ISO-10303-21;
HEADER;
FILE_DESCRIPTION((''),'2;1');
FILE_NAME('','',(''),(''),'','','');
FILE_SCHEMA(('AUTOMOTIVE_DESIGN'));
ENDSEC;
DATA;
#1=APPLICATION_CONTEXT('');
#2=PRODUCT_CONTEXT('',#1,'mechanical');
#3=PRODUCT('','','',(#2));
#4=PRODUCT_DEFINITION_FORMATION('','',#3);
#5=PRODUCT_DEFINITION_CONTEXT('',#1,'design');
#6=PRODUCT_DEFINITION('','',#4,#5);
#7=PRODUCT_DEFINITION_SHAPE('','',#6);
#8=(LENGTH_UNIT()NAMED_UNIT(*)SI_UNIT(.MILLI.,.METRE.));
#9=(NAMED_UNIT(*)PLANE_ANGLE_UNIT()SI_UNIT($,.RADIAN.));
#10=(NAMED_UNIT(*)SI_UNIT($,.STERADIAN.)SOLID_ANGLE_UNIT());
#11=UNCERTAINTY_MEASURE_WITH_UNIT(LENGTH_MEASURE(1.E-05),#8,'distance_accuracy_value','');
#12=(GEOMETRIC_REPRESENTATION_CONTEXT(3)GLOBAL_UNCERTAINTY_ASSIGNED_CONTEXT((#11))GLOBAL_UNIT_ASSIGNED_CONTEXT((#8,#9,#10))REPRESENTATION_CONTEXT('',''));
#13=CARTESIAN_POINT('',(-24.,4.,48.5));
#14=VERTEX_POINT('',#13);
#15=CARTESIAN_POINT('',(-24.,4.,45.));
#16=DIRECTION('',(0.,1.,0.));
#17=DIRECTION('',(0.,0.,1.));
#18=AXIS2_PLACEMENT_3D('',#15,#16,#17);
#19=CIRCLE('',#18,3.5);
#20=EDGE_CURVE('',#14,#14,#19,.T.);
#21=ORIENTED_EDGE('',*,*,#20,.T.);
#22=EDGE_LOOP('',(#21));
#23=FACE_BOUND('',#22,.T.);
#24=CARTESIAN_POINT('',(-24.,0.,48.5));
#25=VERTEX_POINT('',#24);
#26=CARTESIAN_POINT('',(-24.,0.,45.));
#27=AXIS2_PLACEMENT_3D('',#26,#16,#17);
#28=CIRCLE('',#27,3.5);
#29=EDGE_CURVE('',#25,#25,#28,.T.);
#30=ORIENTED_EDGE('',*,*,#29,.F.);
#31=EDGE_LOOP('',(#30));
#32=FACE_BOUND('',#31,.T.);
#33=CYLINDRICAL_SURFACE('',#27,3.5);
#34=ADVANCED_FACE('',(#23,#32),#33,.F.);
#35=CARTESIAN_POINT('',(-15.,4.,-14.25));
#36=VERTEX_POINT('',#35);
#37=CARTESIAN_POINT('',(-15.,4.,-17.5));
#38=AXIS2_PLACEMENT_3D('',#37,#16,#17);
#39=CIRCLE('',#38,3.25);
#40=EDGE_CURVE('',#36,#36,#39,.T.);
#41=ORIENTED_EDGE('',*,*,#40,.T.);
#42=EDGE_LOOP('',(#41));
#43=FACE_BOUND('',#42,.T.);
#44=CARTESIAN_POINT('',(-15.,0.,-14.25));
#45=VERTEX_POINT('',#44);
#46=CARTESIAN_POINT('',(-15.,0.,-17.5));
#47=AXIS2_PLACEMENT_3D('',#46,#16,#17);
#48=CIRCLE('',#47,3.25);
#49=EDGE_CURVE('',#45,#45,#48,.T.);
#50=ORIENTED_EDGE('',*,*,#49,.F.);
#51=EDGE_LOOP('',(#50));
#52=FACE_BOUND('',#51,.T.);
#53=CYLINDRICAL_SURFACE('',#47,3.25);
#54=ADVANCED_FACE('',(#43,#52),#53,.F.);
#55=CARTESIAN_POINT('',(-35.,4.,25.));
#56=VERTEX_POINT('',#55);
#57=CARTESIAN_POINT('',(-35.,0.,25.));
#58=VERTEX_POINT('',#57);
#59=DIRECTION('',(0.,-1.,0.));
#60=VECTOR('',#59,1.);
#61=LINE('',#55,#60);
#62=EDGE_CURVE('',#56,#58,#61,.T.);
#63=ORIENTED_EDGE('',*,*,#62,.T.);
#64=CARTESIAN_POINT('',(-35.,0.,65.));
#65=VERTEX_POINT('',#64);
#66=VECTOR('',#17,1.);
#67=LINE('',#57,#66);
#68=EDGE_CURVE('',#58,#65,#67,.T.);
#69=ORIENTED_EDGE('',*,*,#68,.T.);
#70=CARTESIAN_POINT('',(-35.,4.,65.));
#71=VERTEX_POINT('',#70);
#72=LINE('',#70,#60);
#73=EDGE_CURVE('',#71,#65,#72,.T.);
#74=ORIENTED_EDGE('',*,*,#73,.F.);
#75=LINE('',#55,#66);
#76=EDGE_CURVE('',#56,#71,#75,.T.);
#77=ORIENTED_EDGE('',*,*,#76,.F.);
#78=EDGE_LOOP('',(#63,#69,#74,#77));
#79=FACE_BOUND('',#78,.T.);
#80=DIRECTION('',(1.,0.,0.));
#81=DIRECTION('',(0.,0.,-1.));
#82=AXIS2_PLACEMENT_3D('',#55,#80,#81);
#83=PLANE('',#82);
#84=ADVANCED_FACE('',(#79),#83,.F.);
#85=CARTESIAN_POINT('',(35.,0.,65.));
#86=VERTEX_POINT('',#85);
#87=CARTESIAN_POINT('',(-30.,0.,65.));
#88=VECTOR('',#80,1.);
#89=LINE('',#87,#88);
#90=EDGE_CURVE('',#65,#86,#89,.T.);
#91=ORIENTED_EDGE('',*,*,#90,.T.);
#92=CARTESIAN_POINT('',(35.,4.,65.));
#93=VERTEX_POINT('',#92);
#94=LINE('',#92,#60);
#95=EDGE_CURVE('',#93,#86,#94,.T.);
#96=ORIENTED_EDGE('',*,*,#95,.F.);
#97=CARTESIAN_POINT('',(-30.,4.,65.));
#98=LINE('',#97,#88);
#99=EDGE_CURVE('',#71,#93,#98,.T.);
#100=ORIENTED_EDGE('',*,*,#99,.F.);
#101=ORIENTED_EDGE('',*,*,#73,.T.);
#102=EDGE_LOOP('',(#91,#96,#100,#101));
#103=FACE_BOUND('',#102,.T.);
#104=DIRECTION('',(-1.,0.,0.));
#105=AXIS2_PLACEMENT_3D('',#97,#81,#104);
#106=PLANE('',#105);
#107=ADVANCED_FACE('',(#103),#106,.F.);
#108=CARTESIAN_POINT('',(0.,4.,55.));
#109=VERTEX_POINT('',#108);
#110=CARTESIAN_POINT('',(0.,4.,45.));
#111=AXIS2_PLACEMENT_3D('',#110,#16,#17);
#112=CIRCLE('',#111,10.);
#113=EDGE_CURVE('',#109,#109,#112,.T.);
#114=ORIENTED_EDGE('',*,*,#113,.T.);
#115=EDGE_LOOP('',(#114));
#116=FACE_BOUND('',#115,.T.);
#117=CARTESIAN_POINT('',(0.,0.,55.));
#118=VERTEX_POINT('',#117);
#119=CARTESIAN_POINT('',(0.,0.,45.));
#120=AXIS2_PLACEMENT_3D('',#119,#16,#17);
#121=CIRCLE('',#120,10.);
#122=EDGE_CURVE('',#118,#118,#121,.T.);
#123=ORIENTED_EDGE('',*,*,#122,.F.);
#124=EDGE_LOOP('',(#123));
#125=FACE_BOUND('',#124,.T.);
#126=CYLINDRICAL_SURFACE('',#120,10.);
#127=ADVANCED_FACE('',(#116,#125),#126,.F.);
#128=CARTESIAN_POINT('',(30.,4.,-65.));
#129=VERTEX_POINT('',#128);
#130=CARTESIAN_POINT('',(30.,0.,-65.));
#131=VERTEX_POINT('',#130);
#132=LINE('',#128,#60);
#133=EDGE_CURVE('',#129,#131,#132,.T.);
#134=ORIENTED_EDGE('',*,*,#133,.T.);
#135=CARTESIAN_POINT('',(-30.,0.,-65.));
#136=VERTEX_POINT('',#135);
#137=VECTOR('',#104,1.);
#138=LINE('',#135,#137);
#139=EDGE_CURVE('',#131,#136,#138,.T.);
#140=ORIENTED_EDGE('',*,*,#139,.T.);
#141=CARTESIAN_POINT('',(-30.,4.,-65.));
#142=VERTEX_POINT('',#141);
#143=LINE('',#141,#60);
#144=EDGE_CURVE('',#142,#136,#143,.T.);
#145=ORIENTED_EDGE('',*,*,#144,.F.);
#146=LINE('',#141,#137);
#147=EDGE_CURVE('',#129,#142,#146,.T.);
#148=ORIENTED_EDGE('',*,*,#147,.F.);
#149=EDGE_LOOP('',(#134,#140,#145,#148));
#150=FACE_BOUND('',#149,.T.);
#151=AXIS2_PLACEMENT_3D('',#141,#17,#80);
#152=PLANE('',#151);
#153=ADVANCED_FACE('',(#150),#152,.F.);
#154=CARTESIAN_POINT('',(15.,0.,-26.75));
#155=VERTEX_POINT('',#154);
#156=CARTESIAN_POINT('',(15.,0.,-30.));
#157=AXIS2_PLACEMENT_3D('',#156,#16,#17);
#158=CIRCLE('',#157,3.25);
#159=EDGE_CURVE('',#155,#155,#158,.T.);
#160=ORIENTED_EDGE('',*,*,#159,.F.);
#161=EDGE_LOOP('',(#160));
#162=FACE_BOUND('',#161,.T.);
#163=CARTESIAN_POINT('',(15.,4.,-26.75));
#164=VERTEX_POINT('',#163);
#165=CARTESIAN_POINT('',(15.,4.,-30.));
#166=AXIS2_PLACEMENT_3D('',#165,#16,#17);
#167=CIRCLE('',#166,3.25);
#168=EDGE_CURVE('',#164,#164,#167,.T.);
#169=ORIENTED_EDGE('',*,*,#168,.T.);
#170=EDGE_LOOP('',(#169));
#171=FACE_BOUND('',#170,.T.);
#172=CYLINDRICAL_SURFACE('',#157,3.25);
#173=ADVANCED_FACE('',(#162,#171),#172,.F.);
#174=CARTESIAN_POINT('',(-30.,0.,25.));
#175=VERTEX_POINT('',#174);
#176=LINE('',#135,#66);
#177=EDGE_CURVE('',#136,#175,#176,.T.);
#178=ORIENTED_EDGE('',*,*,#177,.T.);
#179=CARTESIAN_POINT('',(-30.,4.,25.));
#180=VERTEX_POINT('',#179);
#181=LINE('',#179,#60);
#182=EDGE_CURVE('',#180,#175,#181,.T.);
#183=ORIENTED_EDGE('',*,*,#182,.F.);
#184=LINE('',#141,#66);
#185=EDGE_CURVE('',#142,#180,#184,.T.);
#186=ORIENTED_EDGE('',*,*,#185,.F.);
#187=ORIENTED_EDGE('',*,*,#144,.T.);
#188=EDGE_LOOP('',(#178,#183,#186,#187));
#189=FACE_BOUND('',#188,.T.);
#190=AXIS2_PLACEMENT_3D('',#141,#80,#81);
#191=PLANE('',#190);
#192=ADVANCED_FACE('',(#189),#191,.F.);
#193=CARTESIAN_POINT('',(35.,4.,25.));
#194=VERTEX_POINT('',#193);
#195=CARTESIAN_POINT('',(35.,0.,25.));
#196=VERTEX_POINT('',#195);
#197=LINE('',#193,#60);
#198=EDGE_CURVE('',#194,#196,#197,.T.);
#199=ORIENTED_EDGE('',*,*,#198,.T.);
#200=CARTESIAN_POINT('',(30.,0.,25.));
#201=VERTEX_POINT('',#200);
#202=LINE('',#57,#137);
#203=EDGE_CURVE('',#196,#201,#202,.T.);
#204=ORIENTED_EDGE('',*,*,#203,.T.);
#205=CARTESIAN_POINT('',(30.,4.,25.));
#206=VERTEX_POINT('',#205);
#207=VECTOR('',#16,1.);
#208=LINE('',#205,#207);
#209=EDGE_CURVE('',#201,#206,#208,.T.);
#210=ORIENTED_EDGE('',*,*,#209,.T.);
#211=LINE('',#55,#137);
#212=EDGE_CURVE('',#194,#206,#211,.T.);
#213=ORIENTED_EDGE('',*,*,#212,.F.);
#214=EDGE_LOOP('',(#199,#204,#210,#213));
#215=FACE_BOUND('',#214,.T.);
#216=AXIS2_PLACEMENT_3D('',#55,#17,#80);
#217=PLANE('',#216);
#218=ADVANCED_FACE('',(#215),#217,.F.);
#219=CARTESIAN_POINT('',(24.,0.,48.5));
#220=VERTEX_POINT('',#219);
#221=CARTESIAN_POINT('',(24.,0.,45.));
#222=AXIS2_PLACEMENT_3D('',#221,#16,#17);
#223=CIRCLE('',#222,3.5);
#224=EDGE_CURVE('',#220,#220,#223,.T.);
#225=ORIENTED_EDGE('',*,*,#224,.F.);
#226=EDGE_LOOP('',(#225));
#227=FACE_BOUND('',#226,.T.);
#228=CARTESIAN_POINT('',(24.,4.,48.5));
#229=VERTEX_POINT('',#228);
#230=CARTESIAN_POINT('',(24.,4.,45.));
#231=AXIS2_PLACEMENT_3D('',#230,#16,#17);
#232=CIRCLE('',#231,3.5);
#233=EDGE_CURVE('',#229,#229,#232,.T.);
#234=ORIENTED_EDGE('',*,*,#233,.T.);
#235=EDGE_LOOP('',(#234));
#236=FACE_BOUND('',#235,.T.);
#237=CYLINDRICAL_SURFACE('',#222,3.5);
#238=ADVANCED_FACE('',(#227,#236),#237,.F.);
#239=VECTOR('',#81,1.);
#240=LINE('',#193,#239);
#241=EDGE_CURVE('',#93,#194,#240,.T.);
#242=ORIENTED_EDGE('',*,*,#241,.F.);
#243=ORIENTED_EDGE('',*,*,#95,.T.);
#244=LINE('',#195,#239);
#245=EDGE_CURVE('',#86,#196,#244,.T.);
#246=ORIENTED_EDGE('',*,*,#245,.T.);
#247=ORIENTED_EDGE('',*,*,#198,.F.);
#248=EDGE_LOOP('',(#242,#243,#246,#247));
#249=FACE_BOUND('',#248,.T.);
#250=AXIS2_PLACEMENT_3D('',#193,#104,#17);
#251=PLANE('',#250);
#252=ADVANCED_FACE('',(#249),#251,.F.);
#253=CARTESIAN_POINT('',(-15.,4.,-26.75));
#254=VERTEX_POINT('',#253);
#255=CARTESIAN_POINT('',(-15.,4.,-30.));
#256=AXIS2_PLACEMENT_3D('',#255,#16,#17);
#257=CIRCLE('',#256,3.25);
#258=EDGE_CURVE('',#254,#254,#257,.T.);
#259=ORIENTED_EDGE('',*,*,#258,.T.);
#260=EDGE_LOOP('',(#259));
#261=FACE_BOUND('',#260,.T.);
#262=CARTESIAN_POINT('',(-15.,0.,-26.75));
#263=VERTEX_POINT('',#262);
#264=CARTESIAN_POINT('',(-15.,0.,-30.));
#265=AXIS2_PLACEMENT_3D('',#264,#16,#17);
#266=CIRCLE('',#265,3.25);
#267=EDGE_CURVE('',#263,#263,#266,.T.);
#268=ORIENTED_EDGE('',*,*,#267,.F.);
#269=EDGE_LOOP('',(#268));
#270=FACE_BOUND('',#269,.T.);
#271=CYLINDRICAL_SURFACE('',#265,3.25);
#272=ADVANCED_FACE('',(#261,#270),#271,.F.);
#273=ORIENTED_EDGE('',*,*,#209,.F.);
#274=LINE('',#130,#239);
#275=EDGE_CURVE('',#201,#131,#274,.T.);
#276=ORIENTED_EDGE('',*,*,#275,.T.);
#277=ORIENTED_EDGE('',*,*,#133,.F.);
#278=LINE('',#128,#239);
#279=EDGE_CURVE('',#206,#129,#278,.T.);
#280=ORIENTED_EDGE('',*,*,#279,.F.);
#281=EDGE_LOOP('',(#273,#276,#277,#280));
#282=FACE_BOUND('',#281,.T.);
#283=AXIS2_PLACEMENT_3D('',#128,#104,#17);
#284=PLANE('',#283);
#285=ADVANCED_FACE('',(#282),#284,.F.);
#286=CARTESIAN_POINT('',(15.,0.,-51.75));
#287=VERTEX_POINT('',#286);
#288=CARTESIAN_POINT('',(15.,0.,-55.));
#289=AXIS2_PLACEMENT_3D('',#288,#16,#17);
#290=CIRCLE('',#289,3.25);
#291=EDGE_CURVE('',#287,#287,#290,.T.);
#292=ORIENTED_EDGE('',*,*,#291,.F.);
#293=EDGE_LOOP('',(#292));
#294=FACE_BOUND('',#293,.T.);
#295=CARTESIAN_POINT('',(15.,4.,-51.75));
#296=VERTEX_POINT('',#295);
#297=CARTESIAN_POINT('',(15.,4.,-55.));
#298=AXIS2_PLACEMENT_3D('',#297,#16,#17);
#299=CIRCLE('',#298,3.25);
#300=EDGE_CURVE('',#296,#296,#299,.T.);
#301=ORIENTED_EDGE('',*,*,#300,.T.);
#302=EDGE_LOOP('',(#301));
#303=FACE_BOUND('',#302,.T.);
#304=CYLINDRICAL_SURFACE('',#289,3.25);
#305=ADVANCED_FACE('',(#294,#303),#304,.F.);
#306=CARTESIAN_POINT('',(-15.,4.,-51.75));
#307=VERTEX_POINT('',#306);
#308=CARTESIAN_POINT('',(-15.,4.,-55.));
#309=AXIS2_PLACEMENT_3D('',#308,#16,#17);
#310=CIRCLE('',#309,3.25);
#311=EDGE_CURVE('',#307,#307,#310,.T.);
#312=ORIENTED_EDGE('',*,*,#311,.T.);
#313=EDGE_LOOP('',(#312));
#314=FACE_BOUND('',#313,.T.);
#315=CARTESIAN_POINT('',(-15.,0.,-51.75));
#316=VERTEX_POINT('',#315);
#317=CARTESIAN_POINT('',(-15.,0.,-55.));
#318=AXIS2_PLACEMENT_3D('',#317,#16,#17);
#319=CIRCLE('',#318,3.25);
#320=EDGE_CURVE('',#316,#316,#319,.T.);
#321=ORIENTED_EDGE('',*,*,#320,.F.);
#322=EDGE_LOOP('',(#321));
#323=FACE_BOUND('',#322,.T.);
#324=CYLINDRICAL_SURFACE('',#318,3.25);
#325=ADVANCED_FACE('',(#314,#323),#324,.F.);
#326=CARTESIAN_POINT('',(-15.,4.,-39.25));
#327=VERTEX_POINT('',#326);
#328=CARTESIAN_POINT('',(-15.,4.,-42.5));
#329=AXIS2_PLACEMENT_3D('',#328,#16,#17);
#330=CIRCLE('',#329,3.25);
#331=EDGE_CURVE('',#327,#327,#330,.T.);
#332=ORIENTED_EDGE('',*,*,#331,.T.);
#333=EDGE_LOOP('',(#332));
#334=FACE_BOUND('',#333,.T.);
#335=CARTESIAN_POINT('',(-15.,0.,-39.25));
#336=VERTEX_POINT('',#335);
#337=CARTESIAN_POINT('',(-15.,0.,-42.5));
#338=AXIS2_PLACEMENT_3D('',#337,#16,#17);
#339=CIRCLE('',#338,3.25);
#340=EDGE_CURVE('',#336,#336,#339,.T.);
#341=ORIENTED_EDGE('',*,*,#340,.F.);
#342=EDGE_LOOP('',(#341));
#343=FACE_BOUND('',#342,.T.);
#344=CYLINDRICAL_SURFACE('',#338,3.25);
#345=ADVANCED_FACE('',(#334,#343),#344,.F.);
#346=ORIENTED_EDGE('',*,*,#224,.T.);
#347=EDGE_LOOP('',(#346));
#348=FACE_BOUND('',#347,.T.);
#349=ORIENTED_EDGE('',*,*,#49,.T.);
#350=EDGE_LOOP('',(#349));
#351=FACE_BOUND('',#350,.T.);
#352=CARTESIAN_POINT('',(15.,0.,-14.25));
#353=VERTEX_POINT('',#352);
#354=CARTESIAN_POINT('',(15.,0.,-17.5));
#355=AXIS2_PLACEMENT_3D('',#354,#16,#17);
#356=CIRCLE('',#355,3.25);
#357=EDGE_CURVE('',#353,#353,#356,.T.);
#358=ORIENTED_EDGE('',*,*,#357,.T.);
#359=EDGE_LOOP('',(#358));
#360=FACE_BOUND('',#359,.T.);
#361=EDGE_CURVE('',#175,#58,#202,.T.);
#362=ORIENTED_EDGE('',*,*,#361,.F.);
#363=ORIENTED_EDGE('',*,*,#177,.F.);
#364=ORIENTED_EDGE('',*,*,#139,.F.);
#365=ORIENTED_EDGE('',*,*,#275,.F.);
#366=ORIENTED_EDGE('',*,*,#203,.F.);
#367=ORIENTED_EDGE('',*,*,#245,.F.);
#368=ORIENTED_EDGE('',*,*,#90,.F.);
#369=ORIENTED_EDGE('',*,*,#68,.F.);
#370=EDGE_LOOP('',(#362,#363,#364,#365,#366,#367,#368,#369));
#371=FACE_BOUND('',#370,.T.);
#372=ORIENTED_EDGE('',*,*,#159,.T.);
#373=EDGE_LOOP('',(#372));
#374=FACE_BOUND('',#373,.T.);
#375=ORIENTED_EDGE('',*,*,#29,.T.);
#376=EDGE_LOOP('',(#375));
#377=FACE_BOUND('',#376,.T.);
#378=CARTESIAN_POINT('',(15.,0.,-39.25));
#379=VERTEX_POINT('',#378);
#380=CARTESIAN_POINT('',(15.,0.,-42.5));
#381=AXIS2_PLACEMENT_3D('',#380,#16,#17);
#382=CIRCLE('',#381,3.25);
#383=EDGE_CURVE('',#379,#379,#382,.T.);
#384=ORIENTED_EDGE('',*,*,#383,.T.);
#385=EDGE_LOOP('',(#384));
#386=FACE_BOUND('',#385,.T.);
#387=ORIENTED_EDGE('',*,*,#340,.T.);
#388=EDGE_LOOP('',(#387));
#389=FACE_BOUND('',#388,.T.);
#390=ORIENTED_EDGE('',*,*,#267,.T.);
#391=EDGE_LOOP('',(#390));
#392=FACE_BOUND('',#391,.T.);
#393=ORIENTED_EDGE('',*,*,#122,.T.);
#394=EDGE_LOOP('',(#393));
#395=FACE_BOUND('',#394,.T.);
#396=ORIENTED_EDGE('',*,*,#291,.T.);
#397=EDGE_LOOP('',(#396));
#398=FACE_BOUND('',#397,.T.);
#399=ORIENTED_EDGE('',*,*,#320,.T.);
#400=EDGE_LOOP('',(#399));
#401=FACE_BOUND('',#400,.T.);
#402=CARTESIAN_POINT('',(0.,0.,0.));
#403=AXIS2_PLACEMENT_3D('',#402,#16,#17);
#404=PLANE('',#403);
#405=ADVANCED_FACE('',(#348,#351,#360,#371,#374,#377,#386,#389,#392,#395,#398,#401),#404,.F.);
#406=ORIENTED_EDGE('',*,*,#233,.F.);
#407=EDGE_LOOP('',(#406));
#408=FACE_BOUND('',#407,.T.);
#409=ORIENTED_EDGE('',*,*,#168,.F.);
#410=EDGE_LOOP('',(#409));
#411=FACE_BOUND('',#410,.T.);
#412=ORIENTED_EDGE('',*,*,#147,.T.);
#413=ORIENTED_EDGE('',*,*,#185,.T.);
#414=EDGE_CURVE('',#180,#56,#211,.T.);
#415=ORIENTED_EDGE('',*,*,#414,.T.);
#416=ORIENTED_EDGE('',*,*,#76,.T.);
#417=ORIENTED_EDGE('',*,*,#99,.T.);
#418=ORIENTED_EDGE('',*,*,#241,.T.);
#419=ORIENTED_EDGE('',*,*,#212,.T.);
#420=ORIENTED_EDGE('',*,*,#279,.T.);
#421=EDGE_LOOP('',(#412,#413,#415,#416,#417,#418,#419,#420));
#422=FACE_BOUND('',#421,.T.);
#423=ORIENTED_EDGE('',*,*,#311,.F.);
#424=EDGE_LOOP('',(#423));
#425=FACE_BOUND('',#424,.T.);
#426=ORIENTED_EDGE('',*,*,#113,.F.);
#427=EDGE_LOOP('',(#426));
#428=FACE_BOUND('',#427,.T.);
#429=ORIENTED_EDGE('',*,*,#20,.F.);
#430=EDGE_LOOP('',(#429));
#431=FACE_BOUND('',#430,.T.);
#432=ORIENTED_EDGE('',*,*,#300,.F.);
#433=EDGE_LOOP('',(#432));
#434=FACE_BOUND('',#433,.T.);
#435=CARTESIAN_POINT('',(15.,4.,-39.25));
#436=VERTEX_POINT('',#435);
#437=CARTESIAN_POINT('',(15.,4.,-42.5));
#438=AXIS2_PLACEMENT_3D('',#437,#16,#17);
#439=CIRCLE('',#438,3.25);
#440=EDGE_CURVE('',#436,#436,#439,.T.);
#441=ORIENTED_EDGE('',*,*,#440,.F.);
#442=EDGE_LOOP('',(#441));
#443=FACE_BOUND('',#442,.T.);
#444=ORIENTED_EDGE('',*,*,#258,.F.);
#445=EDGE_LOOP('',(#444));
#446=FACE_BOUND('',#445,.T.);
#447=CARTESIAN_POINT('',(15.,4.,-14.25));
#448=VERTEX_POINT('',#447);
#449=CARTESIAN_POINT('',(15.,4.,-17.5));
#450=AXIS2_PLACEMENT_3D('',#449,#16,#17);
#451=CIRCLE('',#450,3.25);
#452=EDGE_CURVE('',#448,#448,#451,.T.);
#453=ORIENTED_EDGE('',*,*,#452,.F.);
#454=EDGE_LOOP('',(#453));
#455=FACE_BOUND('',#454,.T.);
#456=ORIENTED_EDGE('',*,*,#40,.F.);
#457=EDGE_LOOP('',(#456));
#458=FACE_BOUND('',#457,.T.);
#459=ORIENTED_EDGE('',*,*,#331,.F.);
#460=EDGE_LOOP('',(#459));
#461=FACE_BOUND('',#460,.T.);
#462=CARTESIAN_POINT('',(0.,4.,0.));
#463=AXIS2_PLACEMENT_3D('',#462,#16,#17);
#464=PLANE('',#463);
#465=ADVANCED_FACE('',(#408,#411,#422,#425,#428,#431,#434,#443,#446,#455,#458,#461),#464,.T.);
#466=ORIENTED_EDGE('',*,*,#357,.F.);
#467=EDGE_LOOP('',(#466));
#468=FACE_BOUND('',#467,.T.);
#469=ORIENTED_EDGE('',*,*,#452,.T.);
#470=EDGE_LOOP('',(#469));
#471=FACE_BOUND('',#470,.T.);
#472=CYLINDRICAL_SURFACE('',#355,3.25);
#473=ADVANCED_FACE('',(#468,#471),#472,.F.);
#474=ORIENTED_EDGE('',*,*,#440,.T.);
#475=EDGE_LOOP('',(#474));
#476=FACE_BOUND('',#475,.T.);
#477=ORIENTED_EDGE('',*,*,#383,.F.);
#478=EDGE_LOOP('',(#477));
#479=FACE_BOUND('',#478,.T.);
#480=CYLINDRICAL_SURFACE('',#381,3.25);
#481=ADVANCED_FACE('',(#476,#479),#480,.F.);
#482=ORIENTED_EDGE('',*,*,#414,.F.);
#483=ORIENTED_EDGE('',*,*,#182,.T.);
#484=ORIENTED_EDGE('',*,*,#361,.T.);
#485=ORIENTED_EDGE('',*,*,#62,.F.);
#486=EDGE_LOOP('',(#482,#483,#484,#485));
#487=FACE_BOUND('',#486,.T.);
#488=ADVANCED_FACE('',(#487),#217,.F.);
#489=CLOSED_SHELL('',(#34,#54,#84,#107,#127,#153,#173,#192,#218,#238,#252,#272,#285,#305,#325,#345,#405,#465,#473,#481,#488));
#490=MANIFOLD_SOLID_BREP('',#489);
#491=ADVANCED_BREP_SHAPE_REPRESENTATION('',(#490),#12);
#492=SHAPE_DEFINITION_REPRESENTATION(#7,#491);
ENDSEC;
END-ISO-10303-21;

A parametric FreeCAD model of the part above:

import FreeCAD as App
import Part
import Sketcher

doc = App.newDocument("Part")
body = doc.addObject("PartDesign::Body", "Body")

# Sketch on XZ plane
sketch1 = body.newObject("Sketcher::SketchObject", "Sketch")
sketch1.AttachmentSupport = (doc.getObject("XZ_Plane"), [""])
sketch1.MapMode = "FlatFace"
sketch1.addGeometry([
    Part.LineSegment(App.Vector(-30, -65, 0), App.Vector(-30, 65, 0)),
    Part.LineSegment(App.Vector(-30, 65, 0), App.Vector(30, 65, 0)),
    Part.LineSegment(App.Vector(30, 65, 0), App.Vector(30, -65, 0)),
    Part.LineSegment(App.Vector(30, -65, 0), App.Vector(-30, -65, 0)),
], False)
sketch1.addConstraint([
    Sketcher.Constraint("Coincident", 0, 2, 1, 1),
    Sketcher.Constraint("Coincident", 1, 2, 2, 1),
    Sketcher.Constraint("Coincident", 2, 2, 3, 1),
    Sketcher.Constraint("Coincident", 3, 2, 0, 1),
    Sketcher.Constraint("Vertical", 0),
    Sketcher.Constraint("Horizontal", 1),
    Sketcher.Constraint("Vertical", 2),
    Sketcher.Constraint("Horizontal", 3),
    Sketcher.Constraint("Symmetric", 0, 2, 2, 2, -1, 1),
    Sketcher.Constraint("DistanceX", 1, 1, 1, 2, 60.0),
    Sketcher.Constraint("DistanceY", 0, 1, 0, 2, 130.0),
])
pad1 = body.newObject("PartDesign::Pad", "Pad")
pad1.Profile = sketch1
pad1.Length = 4
pad1.Reversed = True

# Sketch on XZ plane
sketch2 = body.newObject("Sketcher::SketchObject", "Sketch001")
sketch2.AttachmentSupport = (doc.getObject("XZ_Plane"), [""])
sketch2.MapMode = "FlatFace"
sketch2.addGeometry([
    Part.LineSegment(App.Vector(-35, 25, 0), App.Vector(-35, 65, 0)),
    Part.LineSegment(App.Vector(-35, 65, 0), App.Vector(35, 65, 0)),
    Part.LineSegment(App.Vector(35, 65, 0), App.Vector(35, 25, 0)),
    Part.LineSegment(App.Vector(35, 25, 0), App.Vector(-35, 25, 0)),
], False)
sketch2.addConstraint([
    Sketcher.Constraint("Coincident", 0, 2, 1, 1),
    Sketcher.Constraint("Coincident", 1, 2, 2, 1),
    Sketcher.Constraint("Coincident", 2, 2, 3, 1),
    Sketcher.Constraint("Coincident", 3, 2, 0, 1),
    Sketcher.Constraint("Vertical", 0),
    Sketcher.Constraint("Horizontal", 1),
    Sketcher.Constraint("Vertical", 2),
    Sketcher.Constraint("Horizontal", 3),
    Sketcher.Constraint("DistanceX", 1, 1, 1, 2, 70.0),
    Sketcher.Constraint("DistanceY", 0, 1, 0, 2, 40.0),
    Sketcher.Constraint("DistanceX", 0, 2, -1, 1, 35.0),
    Sketcher.Constraint("DistanceY", -1, 1, 0, 2, 65.0),
])
pad2 = body.newObject("PartDesign::Pad", "Pad001")
pad2.Profile = sketch2
pad2.Length = 4
pad2.Reversed = True

# Sketch on XZ plane
sketch3 = body.newObject("Sketcher::SketchObject", "Sketch002")
sketch3.AttachmentSupport = (doc.getObject("XZ_Plane"), [""])
sketch3.MapMode = "FlatFace"
sketch3.AttachmentOffset = App.Placement(App.Vector(0, 0, -4), App.Rotation())
sketch3.addGeometry([
    Part.Circle(App.Vector(24, 45, 0), App.Vector(0, 0, 1), 3.5),
    Part.Circle(App.Vector(-24, 45, 0), App.Vector(0, 0, 1), 3.5),
    Part.Circle(App.Vector(0, 45, 0), App.Vector(0, 0, 1), 10),
], False)
sketch3.addConstraint([
    Sketcher.Constraint("Equal", 0, 1),
    Sketcher.Constraint("Symmetric", 0, 3, 1, 3, -2),
    Sketcher.Constraint("PointOnObject", 2, 3, -2),
    Sketcher.Constraint("Horizontal", 1, 3, 2, 3),
    Sketcher.Constraint("Diameter", 0, 7.0),
    Sketcher.Constraint("Diameter", 2, 20.0),
    Sketcher.Constraint("DistanceX", -1, 1, 0, 3, 24.0),
    Sketcher.Constraint("DistanceY", -1, 1, 0, 3, 45.0),
])
pocket1 = body.newObject("PartDesign::Pocket", "Pocket")
pocket1.Profile = sketch3
pocket1.Type = "ThroughAll"
pocket1.Reversed = True

# Sketch on XZ plane
sketch4 = body.newObject("Sketcher::SketchObject", "Sketch003")
sketch4.AttachmentSupport = (doc.getObject("XZ_Plane"), [""])
sketch4.MapMode = "FlatFace"
sketch4.AttachmentOffset = App.Placement(App.Vector(0, 0, 1), App.Rotation())
sketch4.addGeometry([
    Part.Circle(App.Vector(15, -55, 0), App.Vector(0, 0, 1), 3.25),
    Part.Circle(App.Vector(-15, -55, 0), App.Vector(0, 0, 1), 3.25),
], False)
sketch4.addConstraint([
    Sketcher.Constraint("Equal", 0, 1),
    Sketcher.Constraint("Symmetric", 0, 3, 1, 3, -2),
    Sketcher.Constraint("Diameter", 0, 6.5),
    Sketcher.Constraint("DistanceX", -1, 1, 0, 3, 15.0),
    Sketcher.Constraint("DistanceY", 0, 3, -1, 1, 55.0),
])
pocket2 = body.newObject("PartDesign::Pocket", "Pocket001")
pocket2.Profile = sketch4
pocket2.Length = 6
doc.recompute()

linearpattern = body.newObject("PartDesign::LinearPattern", "LinearPattern")
linearpattern.Originals = [pocket2]
linearpattern.Direction = (doc.getObject("Z_Axis"), [""])
linearpattern.Mode = "offset"
linearpattern.Offset = 12.5
linearpattern.Occurrences = 4
body.Tip = linearpattern

doc.recompute()
